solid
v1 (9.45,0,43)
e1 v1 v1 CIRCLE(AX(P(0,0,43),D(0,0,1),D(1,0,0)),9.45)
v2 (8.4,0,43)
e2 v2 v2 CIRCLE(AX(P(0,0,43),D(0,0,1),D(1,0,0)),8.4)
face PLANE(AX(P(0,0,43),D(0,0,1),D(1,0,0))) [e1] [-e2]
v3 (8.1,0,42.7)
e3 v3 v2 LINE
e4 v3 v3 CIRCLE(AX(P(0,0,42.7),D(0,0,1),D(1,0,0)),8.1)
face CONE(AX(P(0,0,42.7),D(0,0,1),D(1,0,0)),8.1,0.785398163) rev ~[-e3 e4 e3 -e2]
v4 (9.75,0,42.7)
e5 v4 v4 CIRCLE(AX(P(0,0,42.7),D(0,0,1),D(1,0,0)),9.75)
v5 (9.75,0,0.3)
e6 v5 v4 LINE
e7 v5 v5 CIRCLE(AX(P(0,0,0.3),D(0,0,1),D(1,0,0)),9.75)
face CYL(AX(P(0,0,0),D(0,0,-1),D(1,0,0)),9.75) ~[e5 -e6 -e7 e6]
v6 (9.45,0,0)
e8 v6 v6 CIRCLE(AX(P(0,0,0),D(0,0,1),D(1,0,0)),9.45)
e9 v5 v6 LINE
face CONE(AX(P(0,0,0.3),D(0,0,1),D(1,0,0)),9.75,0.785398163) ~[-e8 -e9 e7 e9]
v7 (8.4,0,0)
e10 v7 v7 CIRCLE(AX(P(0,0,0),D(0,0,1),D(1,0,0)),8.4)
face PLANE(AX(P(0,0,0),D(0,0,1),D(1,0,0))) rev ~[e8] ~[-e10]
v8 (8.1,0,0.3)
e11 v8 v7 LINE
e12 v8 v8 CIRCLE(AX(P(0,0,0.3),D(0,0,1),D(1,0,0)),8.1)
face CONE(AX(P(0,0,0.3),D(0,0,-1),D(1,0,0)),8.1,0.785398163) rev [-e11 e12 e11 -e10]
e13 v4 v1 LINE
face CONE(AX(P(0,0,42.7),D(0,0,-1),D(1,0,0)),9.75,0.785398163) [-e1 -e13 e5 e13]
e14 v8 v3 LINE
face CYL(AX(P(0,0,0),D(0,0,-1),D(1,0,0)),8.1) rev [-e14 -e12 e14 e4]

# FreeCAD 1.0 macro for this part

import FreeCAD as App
import Part
import Sketcher
Q = App.Units.Quantity

doc = App.newDocument("Part")
body = doc.addObject("PartDesign::Body", "Body")

# Sketch on XY plane
sketch1 = body.newObject("Sketcher::SketchObject", "Sketch")
sketch1.AttachmentSupport = (doc.getObject("XY_Plane"), [""])
sketch1.MapMode = "FlatFace"
sketch1.addGeometry([
    Part.Circle(App.Vector(0, 0, 0), App.Vector(0, 0, 1), 9.75),
    Part.Circle(App.Vector(0, 0, 0), App.Vector(0, 0, 1), 8.1),
], False)
sketch1.addConstraint([
    Sketcher.Constraint("Coincident", 0, 3, -1, 1),
    Sketcher.Constraint("Coincident", 1, 3, -1, 1),
    Sketcher.Constraint("Diameter", 0, Q("19.5 mm")),
    Sketcher.Constraint("Diameter", 1, Q("16.2 mm")),
])
pad1 = body.newObject("PartDesign::Pad", "Pad")
pad1.Profile = sketch1
pad1.Length = 43
doc.recompute()

chamfer = body.newObject("PartDesign::Chamfer", "Chamfer")
chamfer.Base = (pad1, ["Edge1"])
chamfer.UseAllEdges = True
chamfer.Size = 0.3

doc.recompute()
